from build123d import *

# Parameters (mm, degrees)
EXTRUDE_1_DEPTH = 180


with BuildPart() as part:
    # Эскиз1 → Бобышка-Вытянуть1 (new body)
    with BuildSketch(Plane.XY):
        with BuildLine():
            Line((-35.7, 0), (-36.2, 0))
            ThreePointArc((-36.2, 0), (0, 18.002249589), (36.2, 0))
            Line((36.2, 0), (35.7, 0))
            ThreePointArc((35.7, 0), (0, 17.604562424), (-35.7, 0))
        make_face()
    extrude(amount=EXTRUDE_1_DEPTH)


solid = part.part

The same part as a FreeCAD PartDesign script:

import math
import FreeCAD as App
import Part
import Sketcher
Q = App.Units.Quantity

doc = App.newDocument("Part")
body = doc.addObject("PartDesign::Body", "Body")

# Sketch on XY plane
sketch1 = body.newObject("Sketcher::SketchObject", "Sketch")
sketch1.AttachmentSupport = (doc.getObject("XY_Plane"), [""])
sketch1.MapMode = "FlatFace"
sketch1.addGeometry([
    Part.LineSegment(App.Vector(-36.2, 0, 0), App.Vector(-35.7, 0, 0)),
    Part.ArcOfCircle(Part.Circle(App.Vector(0, -27.4, 0), App.Vector(0, 0, 1), 45), math.radians(38), math.radians(142)),
    Part.LineSegment(App.Vector(35.7, 0, 0), App.Vector(36.2, 0, 0)),
    Part.ArcOfCircle(Part.Circle(App.Vector(0, -27.4, 0), App.Vector(0, 0, 1), 45.4), math.radians(37), math.radians(143)),
], False)
sketch1.addConstraint([
    Sketcher.Constraint("Coincident", 0, 2, 1, 2),
    Sketcher.Constraint("Coincident", 1, 1, 2, 1),
    Sketcher.Constraint("Coincident", 2, 2, 3, 1),
    Sketcher.Constraint("Coincident", 3, 2, 0, 1),
    Sketcher.Constraint("Horizontal", 0),
    Sketcher.Constraint("Horizontal", 2),
    Sketcher.Constraint("Coincident", 3, 3, 1, 3),
    Sketcher.Constraint("Symmetric", 0, 2, 1, 1, -1, 1),
    Sketcher.Constraint("PointOnObject", 1, 3, -2),
    Sketcher.Constraint("Radius", 1, Q("45 mm")),
    Sketcher.Constraint("DistanceX", 0, 1, 0, 2, Q("0.5 mm")),
    Sketcher.Constraint("DistanceX", 0, 2, -1, 1, Q("35.7 mm")),
])
pad1 = body.newObject("PartDesign::Pad", "Pad")
pad1.Profile = sketch1
pad1.Length = 180

doc.recompute()
